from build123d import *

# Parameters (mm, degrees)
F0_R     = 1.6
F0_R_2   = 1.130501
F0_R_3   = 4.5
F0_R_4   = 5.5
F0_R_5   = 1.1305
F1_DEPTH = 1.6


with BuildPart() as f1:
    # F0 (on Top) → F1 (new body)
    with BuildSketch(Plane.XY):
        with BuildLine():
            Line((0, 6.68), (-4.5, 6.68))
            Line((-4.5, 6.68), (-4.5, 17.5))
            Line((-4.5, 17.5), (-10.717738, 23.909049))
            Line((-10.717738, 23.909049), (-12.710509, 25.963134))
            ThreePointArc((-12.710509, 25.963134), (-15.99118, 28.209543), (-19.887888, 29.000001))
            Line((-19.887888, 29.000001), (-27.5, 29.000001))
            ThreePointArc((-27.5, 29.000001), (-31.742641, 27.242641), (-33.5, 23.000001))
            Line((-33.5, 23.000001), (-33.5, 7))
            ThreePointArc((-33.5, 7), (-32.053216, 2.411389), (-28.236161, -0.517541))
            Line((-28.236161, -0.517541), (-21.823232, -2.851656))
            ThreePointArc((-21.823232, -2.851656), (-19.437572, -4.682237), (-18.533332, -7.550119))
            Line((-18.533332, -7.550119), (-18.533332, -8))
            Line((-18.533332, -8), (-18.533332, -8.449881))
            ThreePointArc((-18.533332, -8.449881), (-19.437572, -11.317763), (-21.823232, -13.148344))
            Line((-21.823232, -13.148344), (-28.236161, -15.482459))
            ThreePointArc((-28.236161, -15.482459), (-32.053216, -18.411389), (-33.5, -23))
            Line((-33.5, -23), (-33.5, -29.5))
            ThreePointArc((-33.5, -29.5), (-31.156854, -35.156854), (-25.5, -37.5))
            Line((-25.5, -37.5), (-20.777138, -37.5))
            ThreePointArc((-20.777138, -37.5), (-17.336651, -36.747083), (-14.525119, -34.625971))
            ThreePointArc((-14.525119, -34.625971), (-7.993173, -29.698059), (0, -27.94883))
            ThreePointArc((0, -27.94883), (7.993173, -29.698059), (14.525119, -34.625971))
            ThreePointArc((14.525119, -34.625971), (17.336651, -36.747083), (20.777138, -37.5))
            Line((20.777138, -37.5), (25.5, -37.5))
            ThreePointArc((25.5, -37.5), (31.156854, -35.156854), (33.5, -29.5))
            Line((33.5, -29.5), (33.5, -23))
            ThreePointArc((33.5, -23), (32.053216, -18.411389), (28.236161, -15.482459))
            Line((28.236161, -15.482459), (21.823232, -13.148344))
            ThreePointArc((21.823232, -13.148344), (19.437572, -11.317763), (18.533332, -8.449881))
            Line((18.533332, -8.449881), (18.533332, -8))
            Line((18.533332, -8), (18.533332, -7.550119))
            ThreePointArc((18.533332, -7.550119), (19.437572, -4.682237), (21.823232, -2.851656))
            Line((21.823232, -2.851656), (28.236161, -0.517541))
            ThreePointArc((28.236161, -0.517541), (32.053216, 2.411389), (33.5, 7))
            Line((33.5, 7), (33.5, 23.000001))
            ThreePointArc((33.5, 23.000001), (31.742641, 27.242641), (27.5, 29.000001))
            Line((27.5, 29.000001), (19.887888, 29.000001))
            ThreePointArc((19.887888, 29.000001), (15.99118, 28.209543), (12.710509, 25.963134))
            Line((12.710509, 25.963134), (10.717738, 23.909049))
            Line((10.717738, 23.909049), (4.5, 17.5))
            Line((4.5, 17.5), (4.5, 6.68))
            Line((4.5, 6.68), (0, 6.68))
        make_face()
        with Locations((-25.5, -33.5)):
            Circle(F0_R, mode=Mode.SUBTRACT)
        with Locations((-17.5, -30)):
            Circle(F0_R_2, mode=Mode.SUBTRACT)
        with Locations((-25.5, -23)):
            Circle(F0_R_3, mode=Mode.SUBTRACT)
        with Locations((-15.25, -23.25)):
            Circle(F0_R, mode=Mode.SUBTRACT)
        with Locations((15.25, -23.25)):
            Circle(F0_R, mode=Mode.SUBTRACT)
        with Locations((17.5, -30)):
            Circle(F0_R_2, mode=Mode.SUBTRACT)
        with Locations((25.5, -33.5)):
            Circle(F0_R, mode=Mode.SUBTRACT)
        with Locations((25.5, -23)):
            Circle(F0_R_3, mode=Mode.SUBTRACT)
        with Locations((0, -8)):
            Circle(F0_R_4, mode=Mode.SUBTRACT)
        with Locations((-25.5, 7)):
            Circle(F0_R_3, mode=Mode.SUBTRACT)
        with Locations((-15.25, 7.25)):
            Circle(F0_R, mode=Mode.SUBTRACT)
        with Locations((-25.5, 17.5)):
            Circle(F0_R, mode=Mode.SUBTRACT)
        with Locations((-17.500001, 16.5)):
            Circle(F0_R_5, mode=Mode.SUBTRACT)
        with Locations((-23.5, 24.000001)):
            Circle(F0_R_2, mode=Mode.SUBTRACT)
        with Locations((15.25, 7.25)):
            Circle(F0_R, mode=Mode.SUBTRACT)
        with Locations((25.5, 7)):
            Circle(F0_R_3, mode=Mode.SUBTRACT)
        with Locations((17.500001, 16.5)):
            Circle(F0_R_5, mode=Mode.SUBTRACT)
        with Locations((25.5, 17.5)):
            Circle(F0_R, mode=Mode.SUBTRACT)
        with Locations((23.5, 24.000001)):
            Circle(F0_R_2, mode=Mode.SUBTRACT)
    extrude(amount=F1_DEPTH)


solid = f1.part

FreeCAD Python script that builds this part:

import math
import FreeCAD as App
import Part
import Sketcher
Q = App.Units.Quantity

doc = App.newDocument("Part")
body = doc.addObject("PartDesign::Body", "Body")

sketch1 = body.newObject("Sketcher::SketchObject", "Sketch")
sketch1.AttachmentSupport = (doc.getObject("XY_Plane"), [""])
sketch1.MapMode = "FlatFace"
sketch1.addGeometry([
    Part.LineSegment(App.Vector(-4.5, 6.7, 0), App.Vector(-4.5, 17.5, 0)),
    Part.LineSegment(App.Vector(-4.5, 17.5, 0), App.Vector(-10.7, 23.9, 0)),
    Part.LineSegment(App.Vector(-10.7, 23.9, 0), App.Vector(-12.7, 26, 0)),
    Part.ArcOfCircle(Part.Circle(App.Vector(-19.9, 19, 0), App.Vector(0, 0, 1), 10), math.radians(44), math.radians(90)),
    Part.LineSegment(App.Vector(-19.9, 29, 0), App.Vector(-27.5, 29, 0)),
    Part.ArcOfCircle(Part.Circle(App.Vector(-27.5, 23, 0), App.Vector(0, 0, 1), 6), math.radians(90), math.radians(180)),
    Part.LineSegment(App.Vector(-33.5, 23, 0), App.Vector(-33.5, 7, 0)),
    Part.ArcOfCircle(Part.Circle(App.Vector(-25.5, 7, 0), App.Vector(0, 0, 1), 8), math.radians(-180), math.radians(-110)),
    Part.LineSegment(App.Vector(-28.2, -0.5, 0), App.Vector(-21.8, -2.9, 0)),
    Part.ArcOfCircle(Part.Circle(App.Vector(-23.5, -7.6, 0), App.Vector(0, 0, 1), 5), math.radians(0), math.radians(70)),
    Part.LineSegment(App.Vector(-18.5, -7.6, 0), App.Vector(-18.5, -8.4, 0)),
    Part.ArcOfCircle(Part.Circle(App.Vector(-23.5, -8.4, 0), App.Vector(0, 0, 1), 5), math.radians(-70), math.radians(0)),
    Part.LineSegment(App.Vector(-21.8, -13.1, 0), App.Vector(-28.2, -15.5, 0)),
    Part.ArcOfCircle(Part.Circle(App.Vector(-25.5, -23, 0), App.Vector(0, 0, 1), 8), math.radians(110), math.radians(180)),
    Part.LineSegment(App.Vector(-33.5, -23, 0), App.Vector(-33.5, -29.5, 0)),
    Part.ArcOfCircle(Part.Circle(App.Vector(-25.5, -29.5, 0), App.Vector(0, 0, 1), 8), math.radians(-180), math.radians(-90)),
    Part.LineSegment(App.Vector(-25.5, -37.5, 0), App.Vector(-20.8, -37.5, 0)),
    Part.ArcOfCircle(Part.Circle(App.Vector(-20.8, -29.3, 0), App.Vector(0, 0, 1), 8.2), math.radians(-90), math.radians(-41)),
    Part.ArcOfCircle(Part.Circle(App.Vector(0, -47.1, 0), App.Vector(0, 0, 1), 19.1), math.radians(90), math.radians(139)),
    Part.ArcOfCircle(Part.Circle(App.Vector(0, -47.1, 0), App.Vector(0, 0, 1), 19.1), math.radians(41), math.radians(90)),
    Part.ArcOfCircle(Part.Circle(App.Vector(20.8, -29.3, 0), App.Vector(0, 0, 1), 8.2), math.radians(-139), math.radians(-90)),
    Part.LineSegment(App.Vector(20.8, -37.5, 0), App.Vector(25.5, -37.5, 0)),
    Part.ArcOfCircle(Part.Circle(App.Vector(25.5, -29.5, 0), App.Vector(0, 0, 1), 8), math.radians(-90), math.radians(0)),
    Part.LineSegment(App.Vector(33.5, -29.5, 0), App.Vector(33.5, -23, 0)),
    Part.ArcOfCircle(Part.Circle(App.Vector(25.5, -23, 0), App.Vector(0, 0, 1), 8), math.radians(0), math.radians(70)),
    Part.LineSegment(App.Vector(28.2, -15.5, 0), App.Vector(21.8, -13.1, 0)),
    Part.ArcOfCircle(Part.Circle(App.Vector(23.5, -8.4, 0), App.Vector(0, 0, 1), 5), math.radians(-180), math.radians(-110)),
    Part.LineSegment(App.Vector(18.5, -8.4, 0), App.Vector(18.5, -7.6, 0)),
    Part.ArcOfCircle(Part.Circle(App.Vector(23.5, -7.6, 0), App.Vector(0, 0, 1), 5), math.radians(110), math.radians(180)),
    Part.LineSegment(App.Vector(21.8, -2.9, 0), App.Vector(28.2, -0.5, 0)),
    Part.ArcOfCircle(Part.Circle(App.Vector(25.5, 7, 0), App.Vector(0, 0, 1), 8), math.radians(-70), math.radians(0)),
    Part.LineSegment(App.Vector(33.5, 7, 0), App.Vector(33.5, 23, 0)),
    Part.ArcOfCircle(Part.Circle(App.Vector(27.5, 23, 0), App.Vector(0, 0, 1), 6), math.radians(0), math.radians(90)),
    Part.LineSegment(App.Vector(27.5, 29, 0), App.Vector(19.9, 29, 0)),
    Part.ArcOfCircle(Part.Circle(App.Vector(19.9, 19, 0), App.Vector(0, 0, 1), 10), math.radians(90), math.radians(136)),
    Part.LineSegment(App.Vector(12.7, 26, 0), App.Vector(10.7, 23.9, 0)),
    Part.LineSegment(App.Vector(10.7, 23.9, 0), App.Vector(4.5, 17.5, 0)),
    Part.LineSegment(App.Vector(4.5, 17.5, 0), App.Vector(4.5, 6.7, 0)),
    Part.LineSegment(App.Vector(4.5, 6.7, 0), App.Vector(-4.5, 6.7, 0)),
    Part.Circle(App.Vector(-25.5, -33.5, 0), App.Vector(0, 0, 1), 1.6),
    Part.Circle(App.Vector(-17.5, -30, 0), App.Vector(0, 0, 1), 1.1),
    Part.Circle(App.Vector(-25.5, -23, 0), App.Vector(0, 0, 1), 4.5),
    Part.Circle(App.Vector(-15.2, -23.2, 0), App.Vector(0, 0, 1), 1.6),
    Part.Circle(App.Vector(17.5, -30, 0), App.Vector(0, 0, 1), 1.1),
    Part.Circle(App.Vector(25.5, -33.5, 0), App.Vector(0, 0, 1), 1.6),
    Part.Circle(App.Vector(15.2, -23.2, 0), App.Vector(0, 0, 1), 1.6),
    Part.Circle(App.Vector(25.5, -23, 0), App.Vector(0, 0, 1), 4.5),
    Part.Circle(App.Vector(0, -8, 0), App.Vector(0, 0, 1), 5.5),
    Part.Circle(App.Vector(-25.5, 7, 0), App.Vector(0, 0, 1), 4.5),
    Part.Circle(App.Vector(-15.2, 7.2, 0), App.Vector(0, 0, 1), 1.6),
    Part.Circle(App.Vector(-25.5, 17.5, 0), App.Vector(0, 0, 1), 1.6),
    Part.Circle(App.Vector(-17.5, 16.5, 0), App.Vector(0, 0, 1), 1.1),
    Part.Circle(App.Vector(-23.5, 24, 0), App.Vector(0, 0, 1), 1.1),
    Part.Circle(App.Vector(15.2, 7.2, 0), App.Vector(0, 0, 1), 1.6),
    Part.Circle(App.Vector(25.5, 7, 0), App.Vector(0, 0, 1), 4.5),
    Part.Circle(App.Vector(17.5, 16.5, 0), App.Vector(0, 0, 1), 1.1),
    Part.Circle(App.Vector(25.5, 17.5, 0), App.Vector(0, 0, 1), 1.6),
    Part.Circle(App.Vector(23.5, 24, 0), App.Vector(0, 0, 1), 1.1),
], False)
sketch1.addConstraint([
    Sketcher.Constraint("Coincident", 0, 2, 1, 1),
    Sketcher.Constraint("Coincident", 1, 2, 2, 1),
    Sketcher.Constraint("Tangent", 2, 2, 3, 1),
    Sketcher.Constraint("Tangent", 3, 2, 4, 1),
    Sketcher.Constraint("Tangent", 4, 2, 5, 1),
    Sketcher.Constraint("Tangent", 5, 2, 6, 1),
    Sketcher.Constraint("Tangent", 6, 2, 7, 1),
    Sketcher.Constraint("Tangent", 7, 2, 8, 1),
    Sketcher.Constraint("Tangent", 8, 2, 9, 2),
    Sketcher.Constraint("Tangent", 9, 1, 10, 1),
    Sketcher.Constraint("Tangent", 10, 2, 11, 2),
    Sketcher.Constraint("Tangent", 11, 1, 12, 1),
    Sketcher.Constraint("Tangent", 12, 2, 13, 1),
    Sketcher.Constraint("Tangent", 13, 2, 14, 1),
    Sketcher.Constraint("Tangent", 14, 2, 15, 1),
    Sketcher.Constraint("Tangent", 15, 2, 16, 1),
    Sketcher.Constraint("Tangent", 16, 2, 17, 1),
    Sketcher.Constraint("Tangent", 17, 2, 18, 2),
    Sketcher.Constraint("Tangent", 18, 1, 19, 2),
    Sketcher.Constraint("Tangent", 19, 1, 20, 1),
    Sketcher.Constraint("Tangent", 20, 2, 21, 1),
    Sketcher.Constraint("Tangent", 21, 2, 22, 1),
    Sketcher.Constraint("Tangent", 22, 2, 23, 1),
    Sketcher.Constraint("Tangent", 23, 2, 24, 1),
    Sketcher.Constraint("Tangent", 24, 2, 25, 1),
    Sketcher.Constraint("Tangent", 25, 2, 26, 2),
    Sketcher.Constraint("Tangent", 26, 1, 27, 1),
    Sketcher.Constraint("Tangent", 27, 2, 28, 2),
    Sketcher.Constraint("Tangent", 28, 1, 29, 1),
    Sketcher.Constraint("Tangent", 29, 2, 30, 1),
    Sketcher.Constraint("Tangent", 30, 2, 31, 1),
    Sketcher.Constraint("Tangent", 31, 2, 32, 1),
    Sketcher.Constraint("Tangent", 32, 2, 33, 1),
    Sketcher.Constraint("Tangent", 33, 2, 34, 1),
    Sketcher.Constraint("Tangent", 34, 2, 35, 1),
    Sketcher.Constraint("Coincident", 35, 2, 36, 1),
    Sketcher.Constraint("Coincident", 36, 2, 37, 1),
    Sketcher.Constraint("Coincident", 37, 2, 38, 1),
    Sketcher.Constraint("Coincident", 38, 2, 0, 1),
    Sketcher.Constraint("Vertical", 0),
    Sketcher.Constraint("Horizontal", 4),
    Sketcher.Constraint("Vertical", 6),
    Sketcher.Constraint("Vertical", 10),
    Sketcher.Constraint("Vertical", 14),
    Sketcher.Constraint("Horizontal", 16),
    Sketcher.Constraint("Horizontal", 21),
    Sketcher.Constraint("Vertical", 23),
    Sketcher.Constraint("Vertical", 27),
    Sketcher.Constraint("Vertical", 31),
    Sketcher.Constraint("Horizontal", 33),
    Sketcher.Constraint("Vertical", 37),
    Sketcher.Constraint("Horizontal", 38),
    Sketcher.Constraint("Coincident", 41, 3, 13, 3),
    Sketcher.Constraint("Coincident", 46, 3, 24, 3),
    Sketcher.Constraint("Coincident", 48, 3, 7, 3),
    Sketcher.Constraint("Coincident", 54, 3, 30, 3),
    Sketcher.Constraint("Equal", 9, 11),
    Sketcher.Constraint("Equal", 7, 13),
    Sketcher.Constraint("Equal", 13, 15),
    Sketcher.Constraint("Equal", 18, 19),
    Sketcher.Constraint("Equal", 17, 20),
    Sketcher.Constraint("Equal", 15, 22),
    Sketcher.Constraint("Equal", 22, 24),
    Sketcher.Constraint("Equal", 11, 26),
    Sketcher.Constraint("Equal", 26, 28),
    Sketcher.Constraint("Equal", 24, 30),
    Sketcher.Constraint("Equal", 5, 32),
    Sketcher.Constraint("Equal", 3, 34),
    Sketcher.Constraint("Equal", 39, 42),
    Sketcher.Constraint("Equal", 40, 43),
    Sketcher.Constraint("Equal", 42, 44),
    Sketcher.Constraint("Equal", 44, 45),
    Sketcher.Constraint("Equal", 41, 46),
    Sketcher.Constraint("Equal", 46, 48),
    Sketcher.Constraint("Equal", 45, 49),
    Sketcher.Constraint("Equal", 49, 50),
    Sketcher.Constraint("Equal", 43, 51),
    Sketcher.Constraint("Equal", 51, 52),
    Sketcher.Constraint("Equal", 50, 53),
    Sketcher.Constraint("Equal", 48, 54),
    Sketcher.Constraint("Equal", 52, 55),
    Sketcher.Constraint("Equal", 53, 56),
    Sketcher.Constraint("Equal", 55, 57),
    Sketcher.Constraint("Symmetric", 5, 2, 23, 2, -1, 1),
    Sketcher.Constraint("Symmetric", 13, 2, 31, 2, -1, 1),
    Sketcher.Constraint("Symmetric", 17, 3, 20, 3, -2),
    Sketcher.Constraint("Symmetric", 13, 3, 24, 3, -2),
    Sketcher.Constraint("Symmetric", 11, 3, 26, 3, -2),
    Sketcher.Constraint("Symmetric", 40, 3, 43, 3, -2),
    Sketcher.Constraint("Symmetric", 39, 3, 44, 3, -2),
    Sketcher.Constraint("Symmetric", 42, 3, 45, 3, -2),
    Sketcher.Constraint("Symmetric", 49, 3, 53, 3, -2),
    Sketcher.Constraint("Symmetric", 51, 3, 55, 3, -2),
    Sketcher.Constraint("Symmetric", 50, 3, 56, 3, -2),
    Sketcher.Constraint("Symmetric", 52, 3, 57, 3, -2),
    Sketcher.Constraint("Symmetric", 8, 2, 28, 1, -2),
    Sketcher.Constraint("Symmetric", 2, 2, 34, 2, -2),
    Sketcher.Constraint("Symmetric", 0, 2, 36, 2, -2),
    Sketcher.Constraint("PointOnObject", 47, 3, -2),
    Sketcher.Constraint("PointOnObject", 18, 1, -2),
    Sketcher.Constraint("Parallel", 1, 2),
    Sketcher.Constraint("Parallel", 8, 25),
    Sketcher.Constraint("Horizontal", 56, 3, 0, 2),
    Sketcher.Constraint("Horizontal", 1, 2, 35, 2),
    Sketcher.Constraint("Vertical", 15, 3, 39, 3),
    Sketcher.Constraint("Vertical", 42, 3, 49, 3),
    Sketcher.Constraint("Vertical", 48, 3, 50, 3),
    Sketcher.Constraint("Vertical", 40, 3, 51, 3),
    Sketcher.Constraint("Diameter", 41, Q("9 mm")),
    Sketcher.Constraint("Diameter", 47, Q("11 mm")),
    Sketcher.Constraint("Radius", 3, Q("9.999999 mm")),
    Sketcher.Constraint("Radius", 5, Q("6.000001 mm")),
    Sketcher.Constraint("Radius", 9, Q("5 mm")),
    Sketcher.Constraint("Radius", 15, Q("8.000001 mm")),
    Sketcher.Constraint("Diameter", 39, Q("3.2 mm")),
    Sketcher.Constraint("DistanceX", 38, 2, 38, 1, Q("9 mm")),
    Sketcher.Constraint("DistanceY", 6, 2, 6, 1, Q("16.000001 mm")),
    Sketcher.Constraint("Angle", 8, Q("-19.999998 deg")),
    Sketcher.Constraint("Diameter", 40, Q("2.261002 mm")),
    Sketcher.Constraint("DistanceY", 14, 2, 14, 1, Q("6.5 mm")),
    Sketcher.Constraint("DistanceY", -1, 1, 5, 3, Q("23 mm")),
    Sketcher.Constraint("DistanceY", 40, 3, -1, 1, Q("30 mm")),
    Sketcher.Constraint("DistanceY", 47, 3, -1, 1, Q("8 mm")),
    Sketcher.Constraint("DistanceY", -1, 1, 52, 3, Q("24.000001 mm")),
    Sketcher.Constraint("DistanceY", 0, 1, 0, 2, Q("10.82 mm")),
    Sketcher.Constraint("DistanceX", 5, 3, -1, 1, Q("27.499999 mm")),
    Sketcher.Constraint("DistanceY", 39, 3, -1, 1, Q("33.5 mm")),
    Sketcher.Constraint("DistanceX", 40, 3, -1, 1, Q("17.5 mm")),
    Sketcher.Constraint("DistanceY", -1, 1, 50, 3, Q("17.5 mm")),
    Sketcher.Constraint("DistanceY", -1, 1, 51, 3, Q("16.5 mm")),
    Sketcher.Constraint("DistanceX", 52, 3, -1, 1, Q("23.5 mm")),
    Sketcher.Constraint("DistanceX", 42, 3, -1, 1, Q("15.25 mm")),
    Sketcher.Constraint("DistanceY", 42, 3, -1, 1, Q("23.25 mm")),
    Sketcher.Constraint("DistanceY", -1, 1, 49, 3, Q("7.25 mm")),
    Sketcher.Constraint("Radius", 18, Q("19.13718 mm")),
    Sketcher.Constraint("Radius", 17, Q("8.237173 mm")),
    Sketcher.Constraint("DistanceX", 4, 2, 4, 1, Q("7.612112 mm")),
    Sketcher.Constraint("DistanceX", 16, 1, 16, 2, Q("4.722862 mm")),
    Sketcher.Constraint("DistanceY", 10, 2, 10, 1, Q("0.899762 mm")),
    Sketcher.Constraint("Distance", 1, Q("8.929511 mm")),
])
pad1 = body.newObject("PartDesign::Pad", "Pad")
pad1.Profile = sketch1
pad1.Length = 1.6

doc.recompute()
